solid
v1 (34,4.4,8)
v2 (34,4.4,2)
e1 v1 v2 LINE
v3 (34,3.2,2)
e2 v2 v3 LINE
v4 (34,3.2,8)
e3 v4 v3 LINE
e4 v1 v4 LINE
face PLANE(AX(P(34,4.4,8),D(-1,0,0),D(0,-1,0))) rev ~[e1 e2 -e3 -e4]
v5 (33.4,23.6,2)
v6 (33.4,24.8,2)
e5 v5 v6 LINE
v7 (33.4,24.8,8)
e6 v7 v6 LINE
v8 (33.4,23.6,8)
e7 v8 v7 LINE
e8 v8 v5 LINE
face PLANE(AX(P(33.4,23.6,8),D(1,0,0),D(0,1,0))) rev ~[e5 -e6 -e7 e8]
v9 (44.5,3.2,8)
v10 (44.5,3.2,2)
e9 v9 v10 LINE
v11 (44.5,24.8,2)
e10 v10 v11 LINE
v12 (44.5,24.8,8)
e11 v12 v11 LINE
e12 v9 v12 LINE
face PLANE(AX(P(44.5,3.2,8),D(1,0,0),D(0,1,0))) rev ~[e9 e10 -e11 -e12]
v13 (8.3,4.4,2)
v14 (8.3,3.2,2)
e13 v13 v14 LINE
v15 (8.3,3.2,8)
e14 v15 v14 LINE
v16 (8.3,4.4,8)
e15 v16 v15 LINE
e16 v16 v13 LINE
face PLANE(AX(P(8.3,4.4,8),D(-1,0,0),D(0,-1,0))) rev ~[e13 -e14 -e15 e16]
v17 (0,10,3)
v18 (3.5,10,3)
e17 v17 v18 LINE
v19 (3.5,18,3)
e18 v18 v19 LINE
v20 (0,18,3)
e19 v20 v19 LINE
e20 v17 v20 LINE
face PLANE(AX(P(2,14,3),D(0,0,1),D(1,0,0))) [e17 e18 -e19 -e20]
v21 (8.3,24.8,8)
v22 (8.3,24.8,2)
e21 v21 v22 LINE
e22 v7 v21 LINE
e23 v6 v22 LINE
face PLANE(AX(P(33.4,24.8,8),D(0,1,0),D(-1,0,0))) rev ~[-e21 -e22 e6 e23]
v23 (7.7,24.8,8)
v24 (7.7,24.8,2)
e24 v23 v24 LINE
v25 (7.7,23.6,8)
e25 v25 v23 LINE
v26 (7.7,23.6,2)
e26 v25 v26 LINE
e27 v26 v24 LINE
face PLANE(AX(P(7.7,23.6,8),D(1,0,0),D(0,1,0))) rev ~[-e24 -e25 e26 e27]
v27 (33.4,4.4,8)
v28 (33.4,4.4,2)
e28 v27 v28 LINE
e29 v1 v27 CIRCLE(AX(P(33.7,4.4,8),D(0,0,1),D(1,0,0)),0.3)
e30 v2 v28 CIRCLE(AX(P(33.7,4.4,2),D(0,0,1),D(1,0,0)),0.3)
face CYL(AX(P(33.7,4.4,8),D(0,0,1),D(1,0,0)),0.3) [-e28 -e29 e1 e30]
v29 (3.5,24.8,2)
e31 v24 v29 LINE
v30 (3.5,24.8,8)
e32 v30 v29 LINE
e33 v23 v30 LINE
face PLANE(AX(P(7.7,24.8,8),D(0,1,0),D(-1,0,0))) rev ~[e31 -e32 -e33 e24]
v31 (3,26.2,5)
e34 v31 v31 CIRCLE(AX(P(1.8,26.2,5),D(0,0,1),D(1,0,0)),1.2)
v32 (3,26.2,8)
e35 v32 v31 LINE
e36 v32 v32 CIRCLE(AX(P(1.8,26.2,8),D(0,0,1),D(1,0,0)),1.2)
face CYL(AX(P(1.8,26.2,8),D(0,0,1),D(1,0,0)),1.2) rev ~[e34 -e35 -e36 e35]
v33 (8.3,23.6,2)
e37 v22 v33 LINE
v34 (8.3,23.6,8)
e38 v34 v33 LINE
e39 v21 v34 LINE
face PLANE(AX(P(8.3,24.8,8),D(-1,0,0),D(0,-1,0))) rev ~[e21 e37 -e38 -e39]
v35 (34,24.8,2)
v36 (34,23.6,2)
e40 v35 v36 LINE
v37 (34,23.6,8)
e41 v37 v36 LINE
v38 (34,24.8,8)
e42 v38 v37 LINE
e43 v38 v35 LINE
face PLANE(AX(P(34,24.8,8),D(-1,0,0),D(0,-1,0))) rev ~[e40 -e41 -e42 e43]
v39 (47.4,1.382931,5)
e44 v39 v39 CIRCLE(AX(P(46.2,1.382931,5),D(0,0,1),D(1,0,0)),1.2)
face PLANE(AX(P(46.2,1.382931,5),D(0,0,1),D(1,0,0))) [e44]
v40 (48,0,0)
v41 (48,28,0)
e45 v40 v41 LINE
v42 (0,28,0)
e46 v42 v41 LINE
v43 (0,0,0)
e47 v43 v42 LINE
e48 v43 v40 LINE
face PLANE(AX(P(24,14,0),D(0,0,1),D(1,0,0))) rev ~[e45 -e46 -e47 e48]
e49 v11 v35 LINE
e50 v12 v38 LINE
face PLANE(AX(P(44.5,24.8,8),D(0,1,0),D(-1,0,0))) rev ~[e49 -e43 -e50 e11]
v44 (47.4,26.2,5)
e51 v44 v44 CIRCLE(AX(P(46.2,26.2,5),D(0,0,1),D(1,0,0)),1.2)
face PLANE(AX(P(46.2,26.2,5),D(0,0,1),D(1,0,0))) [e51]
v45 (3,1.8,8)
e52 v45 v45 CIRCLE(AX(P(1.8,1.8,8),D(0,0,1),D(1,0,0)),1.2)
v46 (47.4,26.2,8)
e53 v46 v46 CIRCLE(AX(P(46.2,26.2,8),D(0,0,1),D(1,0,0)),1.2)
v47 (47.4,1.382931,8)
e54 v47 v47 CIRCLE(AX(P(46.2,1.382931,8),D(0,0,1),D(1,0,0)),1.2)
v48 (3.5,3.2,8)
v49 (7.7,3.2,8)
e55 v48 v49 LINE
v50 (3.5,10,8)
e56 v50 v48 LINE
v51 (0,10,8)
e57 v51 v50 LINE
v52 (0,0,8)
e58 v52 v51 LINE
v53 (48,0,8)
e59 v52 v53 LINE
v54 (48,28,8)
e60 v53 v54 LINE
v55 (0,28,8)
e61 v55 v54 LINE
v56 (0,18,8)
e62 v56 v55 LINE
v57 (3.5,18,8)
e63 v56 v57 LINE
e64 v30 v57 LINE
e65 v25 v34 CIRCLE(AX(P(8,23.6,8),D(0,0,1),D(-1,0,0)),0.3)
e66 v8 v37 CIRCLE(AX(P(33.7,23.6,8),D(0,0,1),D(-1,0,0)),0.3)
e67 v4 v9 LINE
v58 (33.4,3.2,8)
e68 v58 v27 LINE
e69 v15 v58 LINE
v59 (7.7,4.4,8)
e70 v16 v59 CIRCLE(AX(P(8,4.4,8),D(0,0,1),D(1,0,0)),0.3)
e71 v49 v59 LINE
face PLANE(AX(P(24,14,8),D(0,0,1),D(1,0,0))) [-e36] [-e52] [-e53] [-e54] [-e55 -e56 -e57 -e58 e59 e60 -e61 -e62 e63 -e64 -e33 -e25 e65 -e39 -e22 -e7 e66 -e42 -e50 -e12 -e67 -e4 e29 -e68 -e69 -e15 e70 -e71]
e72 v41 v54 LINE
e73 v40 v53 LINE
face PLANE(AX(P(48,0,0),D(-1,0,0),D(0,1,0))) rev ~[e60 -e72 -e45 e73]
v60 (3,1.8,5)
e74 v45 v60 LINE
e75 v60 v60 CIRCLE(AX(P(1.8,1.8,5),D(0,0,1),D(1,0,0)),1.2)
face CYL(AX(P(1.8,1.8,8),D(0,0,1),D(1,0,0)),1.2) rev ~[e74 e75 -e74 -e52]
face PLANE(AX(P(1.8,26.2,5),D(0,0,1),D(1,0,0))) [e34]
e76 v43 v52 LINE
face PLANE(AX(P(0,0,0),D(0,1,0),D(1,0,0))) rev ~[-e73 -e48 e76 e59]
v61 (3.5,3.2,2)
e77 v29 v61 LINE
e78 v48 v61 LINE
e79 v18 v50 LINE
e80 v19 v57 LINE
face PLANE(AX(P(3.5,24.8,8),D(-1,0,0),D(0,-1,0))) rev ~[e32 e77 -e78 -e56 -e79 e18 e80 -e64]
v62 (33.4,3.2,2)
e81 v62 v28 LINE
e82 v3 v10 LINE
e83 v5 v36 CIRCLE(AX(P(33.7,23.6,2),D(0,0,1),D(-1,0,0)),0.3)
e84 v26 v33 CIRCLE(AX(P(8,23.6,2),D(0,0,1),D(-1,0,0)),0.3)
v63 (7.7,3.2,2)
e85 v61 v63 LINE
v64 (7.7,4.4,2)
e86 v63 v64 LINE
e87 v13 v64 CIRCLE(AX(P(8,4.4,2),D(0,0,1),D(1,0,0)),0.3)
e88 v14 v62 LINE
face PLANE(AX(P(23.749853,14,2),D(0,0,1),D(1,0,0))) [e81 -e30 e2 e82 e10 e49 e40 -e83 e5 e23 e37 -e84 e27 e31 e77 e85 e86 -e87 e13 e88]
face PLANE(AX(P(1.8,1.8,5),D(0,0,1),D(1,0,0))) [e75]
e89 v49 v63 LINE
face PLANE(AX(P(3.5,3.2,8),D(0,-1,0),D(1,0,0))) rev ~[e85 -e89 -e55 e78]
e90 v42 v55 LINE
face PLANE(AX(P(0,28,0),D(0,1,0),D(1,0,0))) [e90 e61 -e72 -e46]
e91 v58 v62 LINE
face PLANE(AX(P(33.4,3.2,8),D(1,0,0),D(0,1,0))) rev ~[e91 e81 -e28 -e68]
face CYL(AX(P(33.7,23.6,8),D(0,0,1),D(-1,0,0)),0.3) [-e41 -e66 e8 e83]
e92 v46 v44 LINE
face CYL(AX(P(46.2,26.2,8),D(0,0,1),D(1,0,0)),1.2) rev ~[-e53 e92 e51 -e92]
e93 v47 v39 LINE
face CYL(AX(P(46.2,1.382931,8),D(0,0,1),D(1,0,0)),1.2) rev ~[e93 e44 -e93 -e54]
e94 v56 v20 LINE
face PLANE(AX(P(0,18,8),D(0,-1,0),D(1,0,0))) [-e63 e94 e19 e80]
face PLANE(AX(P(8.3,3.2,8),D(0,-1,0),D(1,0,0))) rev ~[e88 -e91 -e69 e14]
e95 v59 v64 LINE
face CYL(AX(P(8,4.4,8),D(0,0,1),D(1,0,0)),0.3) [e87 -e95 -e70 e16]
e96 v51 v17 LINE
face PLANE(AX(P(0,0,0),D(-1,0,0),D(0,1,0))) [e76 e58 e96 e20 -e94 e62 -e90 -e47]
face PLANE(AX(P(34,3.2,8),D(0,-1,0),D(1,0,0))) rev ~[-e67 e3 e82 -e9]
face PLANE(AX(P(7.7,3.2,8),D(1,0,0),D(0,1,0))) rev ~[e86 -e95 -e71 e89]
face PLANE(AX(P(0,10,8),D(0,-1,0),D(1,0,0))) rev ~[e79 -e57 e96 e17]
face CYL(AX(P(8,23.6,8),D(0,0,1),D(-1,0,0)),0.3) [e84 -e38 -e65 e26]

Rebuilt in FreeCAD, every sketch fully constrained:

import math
import FreeCAD as App
import Part
import Sketcher

V = App.Vector
Q = App.Units.Quantity

doc = App.newDocument("Part")
body = doc.addObject("PartDesign::Body", "Body")

# Sketch on XY plane
sketch1 = body.newObject("Sketcher::SketchObject", "Sketch")
sketch1.AttachmentSupport = (doc.getObject("XY_Plane"), [""])
sketch1.MapMode = "FlatFace"
sketch1.addGeometry(Part.LineSegment(V(0, 28, 0), V(0, 0, 0)), False)
sketch1.addGeometry(Part.LineSegment(V(0, 0, 0), V(48, 0, 0)), False)
sketch1.addGeometry(Part.LineSegment(V(48, 0, 0), V(48, 28, 0)), False)
sketch1.addGeometry(Part.LineSegment(V(48, 28, 0), V(0, 28, 0)), False)
sketch1.addConstraint(Sketcher.Constraint("Coincident", 0, 2, 1, 1))
sketch1.addConstraint(Sketcher.Constraint("Coincident", 1, 2, 2, 1))
sketch1.addConstraint(Sketcher.Constraint("Coincident", 2, 2, 3, 1))
sketch1.addConstraint(Sketcher.Constraint("Coincident", 3, 2, 0, 1))
sketch1.addConstraint(Sketcher.Constraint("Vertical", 0))
sketch1.addConstraint(Sketcher.Constraint("Horizontal", 1))
sketch1.addConstraint(Sketcher.Constraint("Vertical", 2))
sketch1.addConstraint(Sketcher.Constraint("Horizontal", 3))
sketch1.addConstraint(Sketcher.Constraint("Coincident", 0, 2, -1, 1))
sketch1.addConstraint(Sketcher.Constraint("DistanceX", 1, 1, 1, 2, Q("48 mm")))
sketch1.addConstraint(Sketcher.Constraint("DistanceY", 0, 2, 0, 1, Q("28 mm")))
pad1 = body.newObject("PartDesign::Pad", "Pad")
pad1.Profile = sketch1
pad1.Length = 8

# Sketch on XY plane
sketch2 = body.newObject("Sketcher::SketchObject", "Sketch001")
sketch2.AttachmentSupport = (doc.getObject("XY_Plane"), [""])
sketch2.MapMode = "FlatFace"
sketch2.AttachmentOffset = App.Placement(V(0, 0, 8), App.Rotation())
sketch2.addGeometry(Part.LineSegment(V(3.5, 3.2, 0), V(7.7, 3.2, 0)), False)
sketch2.addGeometry(Part.LineSegment(V(7.7, 3.2, 0), V(7.7, 4.4, 0)), False)
sketch2.addGeometry(Part.ArcOfCircle(Part.Circle(V(8, 4.4, 0), V(0, 0, 1), 0.3), math.radians(0), math.radians(180)), False)
sketch2.addGeometry(Part.LineSegment(V(8.3, 4.4, 0), V(8.3, 3.2, 0)), False)
sketch2.addGeometry(Part.LineSegment(V(8.3, 3.2, 0), V(33.4, 3.2, 0)), False)
sketch2.addGeometry(Part.LineSegment(V(33.4, 3.2, 0), V(33.4, 4.4, 0)), False)
sketch2.addGeometry(Part.ArcOfCircle(Part.Circle(V(33.7, 4.4, 0), V(0, 0, 1), 0.3), math.radians(0), math.radians(180)), False)
sketch2.addGeometry(Part.LineSegment(V(34, 4.4, 0), V(34, 3.2, 0)), False)
sketch2.addGeometry(Part.LineSegment(V(34, 3.2, 0), V(44.5, 3.2, 0)), False)
sketch2.addGeometry(Part.LineSegment(V(44.5, 3.2, 0), V(44.5, 24.8, 0)), False)
sketch2.addGeometry(Part.LineSegment(V(44.5, 24.8, 0), V(34, 24.8, 0)), False)
sketch2.addGeometry(Part.LineSegment(V(34, 24.8, 0), V(34, 23.6, 0)), False)
sketch2.addGeometry(Part.ArcOfCircle(Part.Circle(V(33.7, 23.6, 0), V(0, 0, 1), 0.3), math.radians(180), math.radians(360)), False)
sketch2.addGeometry(Part.LineSegment(V(33.4, 23.6, 0), V(33.4, 24.8, 0)), False)
sketch2.addGeometry(Part.LineSegment(V(33.4, 24.8, 0), V(8.3, 24.8, 0)), False)
sketch2.addGeometry(Part.LineSegment(V(8.3, 24.8, 0), V(8.3, 23.6, 0)), False)
sketch2.addGeometry(Part.ArcOfCircle(Part.Circle(V(8, 23.6, 0), V(0, 0, 1), 0.3), math.radians(180), math.radians(360)), False)
sketch2.addGeometry(Part.LineSegment(V(7.7, 23.6, 0), V(7.7, 24.8, 0)), False)
sketch2.addGeometry(Part.LineSegment(V(7.7, 24.8, 0), V(3.5, 24.8, 0)), False)
sketch2.addGeometry(Part.LineSegment(V(3.5, 24.8, 0), V(3.5, 3.2, 0)), False)
sketch2.addConstraint(Sketcher.Constraint("Coincident", 0, 2, 1, 1))
sketch2.addConstraint(Sketcher.Constraint("Tangent", 1, 2, 2, 2))
sketch2.addConstraint(Sketcher.Constraint("Tangent", 2, 1, 3, 1))
sketch2.addConstraint(Sketcher.Constraint("Coincident", 3, 2, 4, 1))
sketch2.addConstraint(Sketcher.Constraint("Coincident", 4, 2, 5, 1))
sketch2.addConstraint(Sketcher.Constraint("Tangent", 5, 2, 6, 2))
sketch2.addConstraint(Sketcher.Constraint("Tangent", 6, 1, 7, 1))
sketch2.addConstraint(Sketcher.Constraint("Coincident", 7, 2, 8, 1))
sketch2.addConstraint(Sketcher.Constraint("Coincident", 8, 2, 9, 1))
sketch2.addConstraint(Sketcher.Constraint("Coincident", 9, 2, 10, 1))
sketch2.addConstraint(Sketcher.Constraint("Coincident", 10, 2, 11, 1))
sketch2.addConstraint(Sketcher.Constraint("Tangent", 11, 2, 12, 2))
sketch2.addConstraint(Sketcher.Constraint("Tangent", 12, 1, 13, 1))
sketch2.addConstraint(Sketcher.Constraint("Coincident", 13, 2, 14, 1))
sketch2.addConstraint(Sketcher.Constraint("Coincident", 14, 2, 15, 1))
sketch2.addConstraint(Sketcher.Constraint("Tangent", 15, 2, 16, 2))
sketch2.addConstraint(Sketcher.Constraint("Tangent", 16, 1, 17, 1))
sketch2.addConstraint(Sketcher.Constraint("Coincident", 17, 2, 18, 1))
sketch2.addConstraint(Sketcher.Constraint("Coincident", 18, 2, 19, 1))
sketch2.addConstraint(Sketcher.Constraint("Coincident", 19, 2, 0, 1))
sketch2.addConstraint(Sketcher.Constraint("Horizontal", 0))
sketch2.addConstraint(Sketcher.Constraint("Vertical", 1))
sketch2.addConstraint(Sketcher.Constraint("Vertical", 3))
sketch2.addConstraint(Sketcher.Constraint("Horizontal", 4))
sketch2.addConstraint(Sketcher.Constraint("Vertical", 5))
sketch2.addConstraint(Sketcher.Constraint("Vertical", 7))
sketch2.addConstraint(Sketcher.Constraint("Horizontal", 8))
sketch2.addConstraint(Sketcher.Constraint("Vertical", 9))
sketch2.addConstraint(Sketcher.Constraint("Horizontal", 10))
sketch2.addConstraint(Sketcher.Constraint("Vertical", 11))
sketch2.addConstraint(Sketcher.Constraint("Vertical", 13))
sketch2.addConstraint(Sketcher.Constraint("Horizontal", 14))
sketch2.addConstraint(Sketcher.Constraint("Vertical", 15))
sketch2.addConstraint(Sketcher.Constraint("Vertical", 17))
sketch2.addConstraint(Sketcher.Constraint("Horizontal", 18))
sketch2.addConstraint(Sketcher.Constraint("Vertical", 19))
sketch2.addConstraint(Sketcher.Constraint("Equal", 2, 6))
sketch2.addConstraint(Sketcher.Constraint("Equal", 6, 12))
sketch2.addConstraint(Sketcher.Constraint("Equal", 12, 16))
sketch2.addConstraint(Sketcher.Constraint("Horizontal", 2, 3, 6, 3))
sketch2.addConstraint(Sketcher.Constraint("Horizontal", 12, 3, 16, 3))
sketch2.addConstraint(Sketcher.Constraint("Horizontal", 0, 2, 3, 2))
sketch2.addConstraint(Sketcher.Constraint("Horizontal", 4, 2, 7, 2))
sketch2.addConstraint(Sketcher.Constraint("Horizontal", 10, 2, 13, 2))
sketch2.addConstraint(Sketcher.Constraint("Horizontal", 14, 2, 17, 2))
sketch2.addConstraint(Sketcher.Constraint("Vertical", 6, 3, 12, 3))
sketch2.addConstraint(Sketcher.Constraint("Vertical", 2, 3, 16, 3))
sketch2.addConstraint(Sketcher.Constraint("Equal", 7, 11))
sketch2.addConstraint(Sketcher.Constraint("Radius", 2, Q("0.3 mm")))
sketch2.addConstraint(Sketcher.Constraint("DistanceX", 0, 1, 0, 2, Q("4.2 mm")))
sketch2.addConstraint(Sketcher.Constraint("DistanceX", 4, 1, 4, 2, Q("25.1 mm")))
sketch2.addConstraint(Sketcher.Constraint("DistanceX", 8, 1, 8, 2, Q("10.5 mm")))
sketch2.addConstraint(Sketcher.Constraint("DistanceY", 1, 1, 1, 2, Q("1.2 mm")))
sketch2.addConstraint(Sketcher.Constraint("DistanceY", 9, 1, 9, 2, Q("21.6 mm")))
sketch2.addConstraint(Sketcher.Constraint("DistanceX", -1, 1, 2, 3, Q("8 mm")))
sketch2.addConstraint(Sketcher.Constraint("DistanceY", -1, 1, 2, 3, Q("4.4 mm")))
pocket1 = body.newObject("PartDesign::Pocket", "Pocket")
pocket1.Profile = sketch2
pocket1.Length = 6

# Sketch on XY plane
sketch3 = body.newObject("Sketcher::SketchObject", "Sketch002")
sketch3.AttachmentSupport = (doc.getObject("XY_Plane"), [""])
sketch3.MapMode = "FlatFace"
sketch3.AttachmentOffset = App.Placement(V(0, 0, 8), App.Rotation())
sketch3.addGeometry(Part.LineSegment(V(0, 18, 0), V(0, 10, 0)), False)
sketch3.addGeometry(Part.LineSegment(V(0, 10, 0), V(4, 10, 0)), False)
sketch3.addGeometry(Part.LineSegment(V(4, 10, 0), V(4, 18, 0)), False)
sketch3.addGeometry(Part.LineSegment(V(4, 18, 0), V(0, 18, 0)), False)
sketch3.addConstraint(Sketcher.Constraint("Coincident", 0, 2, 1, 1))
sketch3.addConstraint(Sketcher.Constraint("Coincident", 1, 2, 2, 1))
sketch3.addConstraint(Sketcher.Constraint("Coincident", 2, 2, 3, 1))
sketch3.addConstraint(Sketcher.Constraint("Coincident", 3, 2, 0, 1))
sketch3.addConstraint(Sketcher.Constraint("Vertical", 0))
sketch3.addConstraint(Sketcher.Constraint("Horizontal", 1))
sketch3.addConstraint(Sketcher.Constraint("Vertical", 2))
sketch3.addConstraint(Sketcher.Constraint("Horizontal", 3))
sketch3.addConstraint(Sketcher.Constraint("PointOnObject", 0, 2, -2))
sketch3.addConstraint(Sketcher.Constraint("DistanceX", 1, 1, 1, 2, Q("4 mm")))
sketch3.addConstraint(Sketcher.Constraint("DistanceY", 0, 2, 0, 1, Q("8 mm")))
sketch3.addConstraint(Sketcher.Constraint("DistanceY", -1, 1, 0, 2, Q("10 mm")))
pocket2 = body.newObject("PartDesign::Pocket", "Pocket001")
pocket2.Profile = sketch3
pocket2.Length = 5

# Sketch on XY plane
sketch4 = body.newObject("Sketcher::SketchObject", "Sketch003")
sketch4.AttachmentSupport = (doc.getObject("XY_Plane"), [""])
sketch4.MapMode = "FlatFace"
sketch4.AttachmentOffset = App.Placement(V(0, 0, 8), App.Rotation())
sketch4.addGeometry(Part.Circle(V(1.8, 26.2, 0), V(0, 0, 1), 1.2), False)
sketch4.addGeometry(Part.Circle(V(1.8, 1.8, 0), V(0, 0, 1), 1.2), False)
sketch4.addGeometry(Part.Circle(V(46.2, 1.382931, 0), V(0, 0, 1), 1.2), False)
sketch4.addGeometry(Part.Circle(V(46.2, 26.2, 0), V(0, 0, 1), 1.2), False)
sketch4.addConstraint(Sketcher.Constraint("Equal", 0, 1))
sketch4.addConstraint(Sketcher.Constraint("Equal", 1, 2))
sketch4.addConstraint(Sketcher.Constraint("Equal", 2, 3))
sketch4.addConstraint(Sketcher.Constraint("Horizontal", 0, 3, 3, 3))
sketch4.addConstraint(Sketcher.Constraint("Vertical", 0, 3, 1, 3))
sketch4.addConstraint(Sketcher.Constraint("Vertical", 2, 3, 3, 3))
sketch4.addConstraint(Sketcher.Constraint("Diameter", 0, Q("2.4 mm")))
sketch4.addConstraint(Sketcher.Constraint("DistanceX", -1, 1, 0, 3, Q("1.8 mm")))
sketch4.addConstraint(Sketcher.Constraint("DistanceY", -1, 1, 0, 3, Q("26.2 mm")))
sketch4.addConstraint(Sketcher.Constraint("DistanceY", -1, 1, 1, 3, Q("1.8 mm")))
sketch4.addConstraint(Sketcher.Constraint("DistanceX", -1, 1, 2, 3, Q("46.2 mm")))
sketch4.addConstraint(Sketcher.Constraint("DistanceY", -1, 1, 2, 3, Q("1.382931 mm")))
pocket3 = body.newObject("PartDesign::Pocket", "Pocket002")
pocket3.Profile = sketch4
pocket3.Length = 3

doc.recompute()
